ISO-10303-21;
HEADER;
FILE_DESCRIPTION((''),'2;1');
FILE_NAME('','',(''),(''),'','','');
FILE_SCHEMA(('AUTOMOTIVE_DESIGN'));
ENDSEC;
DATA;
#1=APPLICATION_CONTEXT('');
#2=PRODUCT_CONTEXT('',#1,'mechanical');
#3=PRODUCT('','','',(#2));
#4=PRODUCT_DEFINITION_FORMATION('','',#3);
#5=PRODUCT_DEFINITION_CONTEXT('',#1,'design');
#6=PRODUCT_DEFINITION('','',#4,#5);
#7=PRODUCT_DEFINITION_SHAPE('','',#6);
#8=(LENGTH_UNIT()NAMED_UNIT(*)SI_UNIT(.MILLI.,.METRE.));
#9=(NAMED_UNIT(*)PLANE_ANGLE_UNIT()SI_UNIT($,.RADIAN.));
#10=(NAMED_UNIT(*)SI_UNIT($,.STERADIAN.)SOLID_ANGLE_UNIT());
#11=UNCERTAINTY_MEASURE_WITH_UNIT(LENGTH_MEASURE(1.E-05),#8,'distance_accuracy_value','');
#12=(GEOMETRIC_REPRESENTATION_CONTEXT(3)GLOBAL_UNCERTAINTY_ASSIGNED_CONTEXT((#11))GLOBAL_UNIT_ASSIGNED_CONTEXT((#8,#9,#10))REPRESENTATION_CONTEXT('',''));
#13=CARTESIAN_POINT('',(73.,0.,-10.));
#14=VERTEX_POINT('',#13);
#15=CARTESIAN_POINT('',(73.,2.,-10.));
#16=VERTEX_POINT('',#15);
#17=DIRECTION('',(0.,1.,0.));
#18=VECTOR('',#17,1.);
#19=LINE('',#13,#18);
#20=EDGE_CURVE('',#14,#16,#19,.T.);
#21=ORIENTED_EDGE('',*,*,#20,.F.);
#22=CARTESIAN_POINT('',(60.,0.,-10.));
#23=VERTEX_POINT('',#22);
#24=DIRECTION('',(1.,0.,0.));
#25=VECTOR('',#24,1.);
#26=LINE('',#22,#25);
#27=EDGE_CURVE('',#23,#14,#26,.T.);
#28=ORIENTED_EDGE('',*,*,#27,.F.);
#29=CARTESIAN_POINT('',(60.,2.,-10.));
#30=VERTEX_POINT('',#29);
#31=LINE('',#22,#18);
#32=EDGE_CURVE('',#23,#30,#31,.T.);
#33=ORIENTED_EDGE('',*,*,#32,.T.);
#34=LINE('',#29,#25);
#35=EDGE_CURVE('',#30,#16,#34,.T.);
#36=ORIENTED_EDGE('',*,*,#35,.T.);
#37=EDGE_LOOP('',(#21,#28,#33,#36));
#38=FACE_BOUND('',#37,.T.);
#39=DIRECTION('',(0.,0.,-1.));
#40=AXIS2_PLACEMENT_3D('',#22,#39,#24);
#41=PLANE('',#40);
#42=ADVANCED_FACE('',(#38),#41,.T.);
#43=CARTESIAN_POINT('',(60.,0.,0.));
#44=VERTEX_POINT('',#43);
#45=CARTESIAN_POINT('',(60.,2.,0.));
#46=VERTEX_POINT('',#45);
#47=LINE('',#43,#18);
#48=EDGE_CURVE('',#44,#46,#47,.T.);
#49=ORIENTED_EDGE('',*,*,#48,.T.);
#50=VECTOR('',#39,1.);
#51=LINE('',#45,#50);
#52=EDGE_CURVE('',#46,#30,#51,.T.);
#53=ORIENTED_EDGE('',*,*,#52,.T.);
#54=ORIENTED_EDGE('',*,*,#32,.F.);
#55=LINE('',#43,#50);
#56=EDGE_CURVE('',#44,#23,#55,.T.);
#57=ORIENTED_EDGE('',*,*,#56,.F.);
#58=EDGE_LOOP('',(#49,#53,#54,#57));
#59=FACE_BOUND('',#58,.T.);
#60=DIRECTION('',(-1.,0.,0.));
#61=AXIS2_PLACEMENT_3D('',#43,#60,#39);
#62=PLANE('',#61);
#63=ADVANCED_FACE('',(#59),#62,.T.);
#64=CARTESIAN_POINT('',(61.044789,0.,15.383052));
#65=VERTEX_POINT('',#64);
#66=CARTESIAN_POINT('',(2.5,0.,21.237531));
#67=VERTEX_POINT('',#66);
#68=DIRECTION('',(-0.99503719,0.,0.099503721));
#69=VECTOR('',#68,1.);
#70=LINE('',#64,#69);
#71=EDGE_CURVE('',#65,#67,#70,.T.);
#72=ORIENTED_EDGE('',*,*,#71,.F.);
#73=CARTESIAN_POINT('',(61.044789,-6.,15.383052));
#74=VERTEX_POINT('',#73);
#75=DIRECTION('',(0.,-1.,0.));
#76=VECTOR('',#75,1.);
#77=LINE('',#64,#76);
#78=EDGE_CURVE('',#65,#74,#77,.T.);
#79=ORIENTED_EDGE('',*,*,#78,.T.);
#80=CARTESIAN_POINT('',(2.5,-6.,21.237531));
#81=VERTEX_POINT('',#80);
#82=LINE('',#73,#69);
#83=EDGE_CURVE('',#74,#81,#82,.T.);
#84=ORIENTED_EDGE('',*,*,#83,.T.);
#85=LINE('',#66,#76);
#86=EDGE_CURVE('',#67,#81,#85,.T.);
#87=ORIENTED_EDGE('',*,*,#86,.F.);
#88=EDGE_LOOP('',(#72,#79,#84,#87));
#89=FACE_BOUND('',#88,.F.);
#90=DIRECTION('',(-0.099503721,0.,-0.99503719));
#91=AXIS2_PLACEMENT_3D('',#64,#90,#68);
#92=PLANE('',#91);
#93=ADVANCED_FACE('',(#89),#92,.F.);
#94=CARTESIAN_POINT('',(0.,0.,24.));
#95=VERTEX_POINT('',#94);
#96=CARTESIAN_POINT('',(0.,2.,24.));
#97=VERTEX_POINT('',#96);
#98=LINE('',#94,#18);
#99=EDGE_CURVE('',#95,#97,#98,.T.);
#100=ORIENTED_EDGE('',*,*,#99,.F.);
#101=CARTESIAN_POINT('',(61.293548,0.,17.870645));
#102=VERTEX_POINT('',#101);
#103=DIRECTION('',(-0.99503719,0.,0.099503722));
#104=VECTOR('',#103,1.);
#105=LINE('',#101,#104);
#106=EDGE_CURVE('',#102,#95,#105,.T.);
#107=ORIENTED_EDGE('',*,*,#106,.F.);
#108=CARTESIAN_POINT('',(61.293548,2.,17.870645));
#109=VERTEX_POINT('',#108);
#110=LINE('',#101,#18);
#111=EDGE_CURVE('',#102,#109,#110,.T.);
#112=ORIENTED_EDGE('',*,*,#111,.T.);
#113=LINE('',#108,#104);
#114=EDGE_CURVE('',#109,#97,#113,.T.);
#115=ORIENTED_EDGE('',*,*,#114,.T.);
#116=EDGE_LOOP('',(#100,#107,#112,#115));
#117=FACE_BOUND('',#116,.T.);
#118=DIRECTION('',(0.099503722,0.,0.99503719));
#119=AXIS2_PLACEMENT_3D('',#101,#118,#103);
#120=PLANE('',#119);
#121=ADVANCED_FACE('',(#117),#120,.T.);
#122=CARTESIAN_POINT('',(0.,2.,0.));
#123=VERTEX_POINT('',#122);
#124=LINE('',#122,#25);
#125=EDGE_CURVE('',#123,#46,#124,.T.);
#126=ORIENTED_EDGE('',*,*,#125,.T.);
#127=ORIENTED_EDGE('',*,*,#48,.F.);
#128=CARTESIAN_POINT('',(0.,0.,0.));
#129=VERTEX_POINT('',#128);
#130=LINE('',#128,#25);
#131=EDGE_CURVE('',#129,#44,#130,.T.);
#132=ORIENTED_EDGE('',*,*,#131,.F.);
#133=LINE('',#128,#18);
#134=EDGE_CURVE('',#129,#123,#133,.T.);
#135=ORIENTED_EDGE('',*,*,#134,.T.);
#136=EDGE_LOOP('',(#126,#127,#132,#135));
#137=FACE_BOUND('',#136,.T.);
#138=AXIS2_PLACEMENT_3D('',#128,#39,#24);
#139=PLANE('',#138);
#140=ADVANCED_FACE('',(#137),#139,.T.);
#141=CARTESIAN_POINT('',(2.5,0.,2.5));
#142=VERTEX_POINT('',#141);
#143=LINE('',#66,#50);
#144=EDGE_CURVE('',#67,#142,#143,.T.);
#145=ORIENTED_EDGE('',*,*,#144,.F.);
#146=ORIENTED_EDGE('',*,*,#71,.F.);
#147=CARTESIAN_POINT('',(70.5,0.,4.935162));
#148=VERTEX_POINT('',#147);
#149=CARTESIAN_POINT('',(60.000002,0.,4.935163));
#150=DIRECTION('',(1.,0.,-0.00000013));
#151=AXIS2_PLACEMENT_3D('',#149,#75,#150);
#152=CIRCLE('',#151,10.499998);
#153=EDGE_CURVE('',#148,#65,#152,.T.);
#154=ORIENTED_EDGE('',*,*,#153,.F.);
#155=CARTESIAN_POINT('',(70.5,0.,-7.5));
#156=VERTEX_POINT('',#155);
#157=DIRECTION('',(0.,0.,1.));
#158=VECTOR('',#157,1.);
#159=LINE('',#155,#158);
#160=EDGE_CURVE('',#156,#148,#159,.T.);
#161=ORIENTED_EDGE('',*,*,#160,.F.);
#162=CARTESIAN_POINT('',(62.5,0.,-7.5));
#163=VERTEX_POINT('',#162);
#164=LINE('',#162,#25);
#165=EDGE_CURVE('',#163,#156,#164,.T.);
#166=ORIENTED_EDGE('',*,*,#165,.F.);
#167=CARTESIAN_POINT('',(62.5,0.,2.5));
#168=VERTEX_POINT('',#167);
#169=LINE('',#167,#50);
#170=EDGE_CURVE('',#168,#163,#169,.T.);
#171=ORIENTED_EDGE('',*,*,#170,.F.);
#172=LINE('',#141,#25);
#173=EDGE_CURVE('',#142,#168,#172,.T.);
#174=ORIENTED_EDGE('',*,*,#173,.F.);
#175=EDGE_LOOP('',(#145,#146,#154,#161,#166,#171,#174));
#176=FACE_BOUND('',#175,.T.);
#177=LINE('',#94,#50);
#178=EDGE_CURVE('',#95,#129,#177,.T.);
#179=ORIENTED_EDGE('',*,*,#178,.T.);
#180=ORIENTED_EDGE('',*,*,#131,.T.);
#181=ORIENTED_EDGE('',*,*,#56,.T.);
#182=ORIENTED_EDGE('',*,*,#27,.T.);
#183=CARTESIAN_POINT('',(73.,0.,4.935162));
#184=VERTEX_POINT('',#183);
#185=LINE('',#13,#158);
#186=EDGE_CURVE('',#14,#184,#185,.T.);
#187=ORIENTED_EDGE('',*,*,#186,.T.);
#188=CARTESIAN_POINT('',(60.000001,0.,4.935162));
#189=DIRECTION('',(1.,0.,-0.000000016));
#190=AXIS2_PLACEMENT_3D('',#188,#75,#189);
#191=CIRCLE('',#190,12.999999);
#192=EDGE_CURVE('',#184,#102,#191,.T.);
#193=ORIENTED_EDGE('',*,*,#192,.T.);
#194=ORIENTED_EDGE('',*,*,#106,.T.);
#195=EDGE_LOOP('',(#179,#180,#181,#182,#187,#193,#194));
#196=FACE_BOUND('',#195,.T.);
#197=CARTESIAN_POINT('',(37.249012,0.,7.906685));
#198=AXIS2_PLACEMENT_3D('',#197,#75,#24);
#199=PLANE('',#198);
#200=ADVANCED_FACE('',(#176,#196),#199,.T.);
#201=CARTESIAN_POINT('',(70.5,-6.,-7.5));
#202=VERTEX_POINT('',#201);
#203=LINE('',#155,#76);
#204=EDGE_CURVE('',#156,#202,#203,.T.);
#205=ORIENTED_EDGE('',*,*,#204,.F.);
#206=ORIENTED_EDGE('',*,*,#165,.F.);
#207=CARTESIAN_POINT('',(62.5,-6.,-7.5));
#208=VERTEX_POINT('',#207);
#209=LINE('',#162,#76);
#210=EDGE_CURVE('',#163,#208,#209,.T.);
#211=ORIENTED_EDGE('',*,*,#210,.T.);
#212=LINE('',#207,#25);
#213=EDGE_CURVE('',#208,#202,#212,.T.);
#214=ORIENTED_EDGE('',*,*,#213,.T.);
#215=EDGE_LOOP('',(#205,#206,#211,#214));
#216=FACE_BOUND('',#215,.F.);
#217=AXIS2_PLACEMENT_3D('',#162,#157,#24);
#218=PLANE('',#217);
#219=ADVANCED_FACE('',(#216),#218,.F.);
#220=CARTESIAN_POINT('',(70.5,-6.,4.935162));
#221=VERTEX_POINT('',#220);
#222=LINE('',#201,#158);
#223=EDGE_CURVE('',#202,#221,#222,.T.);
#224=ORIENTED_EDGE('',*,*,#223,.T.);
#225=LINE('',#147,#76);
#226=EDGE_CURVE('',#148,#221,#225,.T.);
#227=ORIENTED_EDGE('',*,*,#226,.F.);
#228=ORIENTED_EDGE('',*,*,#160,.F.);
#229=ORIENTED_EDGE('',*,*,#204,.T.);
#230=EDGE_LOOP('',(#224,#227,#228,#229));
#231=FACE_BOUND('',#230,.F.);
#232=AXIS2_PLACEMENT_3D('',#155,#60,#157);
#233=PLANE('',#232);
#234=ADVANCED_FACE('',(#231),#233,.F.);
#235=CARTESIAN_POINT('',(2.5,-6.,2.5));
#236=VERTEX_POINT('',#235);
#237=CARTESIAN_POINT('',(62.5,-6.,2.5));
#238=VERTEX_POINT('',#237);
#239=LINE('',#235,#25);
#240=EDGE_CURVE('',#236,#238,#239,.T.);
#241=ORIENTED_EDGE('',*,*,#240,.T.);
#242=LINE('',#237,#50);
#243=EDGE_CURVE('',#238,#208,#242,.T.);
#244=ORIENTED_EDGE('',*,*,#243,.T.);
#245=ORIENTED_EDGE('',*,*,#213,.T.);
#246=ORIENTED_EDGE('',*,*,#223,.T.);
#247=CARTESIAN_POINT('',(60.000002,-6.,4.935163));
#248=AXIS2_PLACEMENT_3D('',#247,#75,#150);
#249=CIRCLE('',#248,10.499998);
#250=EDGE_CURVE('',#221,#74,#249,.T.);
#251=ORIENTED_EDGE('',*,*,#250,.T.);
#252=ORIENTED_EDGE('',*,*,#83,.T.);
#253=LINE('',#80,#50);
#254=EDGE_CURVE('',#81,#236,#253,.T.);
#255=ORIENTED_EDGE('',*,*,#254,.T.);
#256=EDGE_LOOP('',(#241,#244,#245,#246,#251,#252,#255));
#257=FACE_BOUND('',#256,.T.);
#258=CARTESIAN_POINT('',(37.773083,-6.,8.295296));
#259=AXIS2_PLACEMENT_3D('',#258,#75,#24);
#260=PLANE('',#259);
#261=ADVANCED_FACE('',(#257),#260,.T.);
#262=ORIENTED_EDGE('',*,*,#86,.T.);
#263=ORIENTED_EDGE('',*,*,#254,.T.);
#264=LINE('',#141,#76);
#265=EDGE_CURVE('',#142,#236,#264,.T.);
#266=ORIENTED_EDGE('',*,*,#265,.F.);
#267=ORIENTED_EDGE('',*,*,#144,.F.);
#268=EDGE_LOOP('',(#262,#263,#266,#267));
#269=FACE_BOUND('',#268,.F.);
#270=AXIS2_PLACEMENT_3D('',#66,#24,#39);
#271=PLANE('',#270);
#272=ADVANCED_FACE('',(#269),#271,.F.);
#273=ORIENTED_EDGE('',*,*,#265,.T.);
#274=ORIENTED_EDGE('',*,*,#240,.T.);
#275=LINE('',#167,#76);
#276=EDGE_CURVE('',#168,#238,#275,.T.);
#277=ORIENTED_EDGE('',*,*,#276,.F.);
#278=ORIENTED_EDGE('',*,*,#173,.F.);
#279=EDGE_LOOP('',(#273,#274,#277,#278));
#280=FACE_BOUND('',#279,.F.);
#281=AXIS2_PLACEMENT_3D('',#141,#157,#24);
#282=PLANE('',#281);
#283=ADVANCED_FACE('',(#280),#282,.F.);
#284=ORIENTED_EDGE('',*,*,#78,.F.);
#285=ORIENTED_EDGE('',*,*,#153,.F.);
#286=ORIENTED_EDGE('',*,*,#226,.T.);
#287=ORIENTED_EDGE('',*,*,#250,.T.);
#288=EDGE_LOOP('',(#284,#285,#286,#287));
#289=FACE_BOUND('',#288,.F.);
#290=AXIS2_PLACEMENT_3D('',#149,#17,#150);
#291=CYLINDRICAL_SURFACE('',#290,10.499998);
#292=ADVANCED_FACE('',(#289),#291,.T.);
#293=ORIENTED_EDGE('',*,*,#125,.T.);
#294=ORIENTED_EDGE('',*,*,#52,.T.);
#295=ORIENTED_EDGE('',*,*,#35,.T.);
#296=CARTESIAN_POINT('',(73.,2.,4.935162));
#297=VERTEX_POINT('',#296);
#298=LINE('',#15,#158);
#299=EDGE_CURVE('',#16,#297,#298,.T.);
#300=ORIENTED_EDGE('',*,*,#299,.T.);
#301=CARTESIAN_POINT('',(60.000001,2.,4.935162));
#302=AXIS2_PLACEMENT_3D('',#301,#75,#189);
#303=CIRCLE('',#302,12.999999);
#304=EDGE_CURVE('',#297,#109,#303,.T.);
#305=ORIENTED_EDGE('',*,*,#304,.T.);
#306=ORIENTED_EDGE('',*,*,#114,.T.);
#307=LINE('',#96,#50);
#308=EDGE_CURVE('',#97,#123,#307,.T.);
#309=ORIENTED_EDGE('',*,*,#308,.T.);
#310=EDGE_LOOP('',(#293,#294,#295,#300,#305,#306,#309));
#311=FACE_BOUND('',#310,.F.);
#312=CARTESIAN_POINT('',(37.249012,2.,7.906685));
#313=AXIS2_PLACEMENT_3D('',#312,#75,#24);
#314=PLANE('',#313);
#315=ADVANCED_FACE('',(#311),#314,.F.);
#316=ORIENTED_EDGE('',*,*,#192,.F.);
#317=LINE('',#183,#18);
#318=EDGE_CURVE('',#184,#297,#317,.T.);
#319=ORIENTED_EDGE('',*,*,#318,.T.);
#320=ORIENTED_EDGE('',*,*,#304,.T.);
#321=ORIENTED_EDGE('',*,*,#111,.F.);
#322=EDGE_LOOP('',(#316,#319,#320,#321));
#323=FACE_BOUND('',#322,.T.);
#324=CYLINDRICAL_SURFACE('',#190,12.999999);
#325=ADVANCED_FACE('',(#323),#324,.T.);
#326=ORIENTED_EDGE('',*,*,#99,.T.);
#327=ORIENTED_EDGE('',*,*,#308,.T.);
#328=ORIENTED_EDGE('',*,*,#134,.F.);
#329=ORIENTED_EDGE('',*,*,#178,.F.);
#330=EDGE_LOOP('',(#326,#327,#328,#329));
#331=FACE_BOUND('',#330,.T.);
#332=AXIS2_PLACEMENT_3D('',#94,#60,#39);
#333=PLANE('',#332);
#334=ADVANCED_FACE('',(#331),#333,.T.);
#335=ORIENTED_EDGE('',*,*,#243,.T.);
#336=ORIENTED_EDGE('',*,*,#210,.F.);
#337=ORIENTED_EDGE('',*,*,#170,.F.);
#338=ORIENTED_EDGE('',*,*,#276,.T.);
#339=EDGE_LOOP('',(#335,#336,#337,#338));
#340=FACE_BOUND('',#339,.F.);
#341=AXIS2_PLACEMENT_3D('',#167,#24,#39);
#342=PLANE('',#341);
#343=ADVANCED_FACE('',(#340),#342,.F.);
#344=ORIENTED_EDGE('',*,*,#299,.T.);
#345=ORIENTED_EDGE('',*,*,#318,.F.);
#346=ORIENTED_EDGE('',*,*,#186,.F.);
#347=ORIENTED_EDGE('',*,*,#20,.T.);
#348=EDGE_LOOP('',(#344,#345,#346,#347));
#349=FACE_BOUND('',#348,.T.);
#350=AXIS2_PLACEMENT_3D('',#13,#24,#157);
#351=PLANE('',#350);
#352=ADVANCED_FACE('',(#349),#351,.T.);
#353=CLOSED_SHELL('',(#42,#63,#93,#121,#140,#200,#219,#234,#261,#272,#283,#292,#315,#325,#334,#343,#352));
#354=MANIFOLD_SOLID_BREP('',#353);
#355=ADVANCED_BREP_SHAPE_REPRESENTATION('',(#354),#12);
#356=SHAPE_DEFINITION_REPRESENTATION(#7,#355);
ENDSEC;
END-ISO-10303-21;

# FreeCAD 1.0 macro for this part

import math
import FreeCAD as App
import Part
import Sketcher
from FreeCAD import Vector

doc = App.newDocument("Part")
body = doc.addObject("PartDesign::Body", "Body")

# Sketch on XZ plane
sketch1 = doc.addObject("Sketcher::SketchObject", "Sketch")
body.addObject(sketch1)
sketch1.AttachmentSupport = (doc.XZ_Plane, [""])
sketch1.MapMode = "FlatFace"
sketch1.addGeometry([
    Part.LineSegment(Vector(0, 24, 0), Vector(0, 0, 0)),  # 0
    Part.LineSegment(Vector(0, 0, 0), Vector(60, 0, 0)),  # 1
    Part.LineSegment(Vector(60, 0, 0), Vector(60, -10, 0)),  # 2
    Part.LineSegment(Vector(60, -10, 0), Vector(73, -10, 0)),  # 3
    Part.LineSegment(Vector(73, -10, 0), Vector(73, 5, 0)),  # 4
    Part.ArcOfCircle(Part.Circle(Vector(60, 5, 0), Vector(0, 0, 1), 13), math.radians(0), math.radians(84)),  # 5
    Part.LineSegment(Vector(61, 18, 0), Vector(0, 24, 0)),  # 6
], False)
sketch1.addConstraint([
    Sketcher.Constraint("Coincident", 0, 2, 1, 1),
    Sketcher.Constraint("Coincident", 1, 2, 2, 1),
    Sketcher.Constraint("Coincident", 2, 2, 3, 1),
    Sketcher.Constraint("Coincident", 3, 2, 4, 1),
    Sketcher.Constraint("Tangent", 4, 2, 5, 1),
    Sketcher.Constraint("Tangent", 5, 2, 6, 1),
    Sketcher.Constraint("Coincident", 6, 2, 0, 1),
    Sketcher.Constraint("Vertical", 0),
    Sketcher.Constraint("Horizontal", 1),
    Sketcher.Constraint("Vertical", 2),
    Sketcher.Constraint("Horizontal", 3),
    Sketcher.Constraint("Vertical", 4),
    Sketcher.Constraint("Coincident", 0, 2, -1, 1),
    Sketcher.Constraint("Vertical", 5, 3, 1, 2),
    Sketcher.Constraint("Radius", 5, 12.999999),
    Sketcher.Constraint("DistanceX", 1, 1, 1, 2, 60.0),
    Sketcher.Constraint("DistanceY", 0, 2, 0, 1, 24.0),
    Sketcher.Constraint("DistanceY", 2, 2, 2, 1, 10.0),
    Sketcher.Constraint("DistanceY", 4, 1, 4, 2, 14.935162),
])
pad1 = doc.addObject("PartDesign::Pad", "Pad")
body.addObject(pad1)
pad1.Profile = sketch1
pad1.Length = 2
pad1.Reversed = True

# Sketch on XZ plane
sketch2 = doc.addObject("Sketcher::SketchObject", "Sketch001")
body.addObject(sketch2)
sketch2.AttachmentSupport = (doc.XZ_Plane, [""])
sketch2.MapMode = "FlatFace"
sketch2.addGeometry([
    Part.LineSegment(Vector(2, 21, 0), Vector(2, 2, 0)),  # 0
    Part.LineSegment(Vector(2, 2, 0), Vector(62, 2, 0)),  # 1
    Part.LineSegment(Vector(62, 2, 0), Vector(62, -8, 0)),  # 2
    Part.LineSegment(Vector(62, -8, 0), Vector(70, -8, 0)),  # 3
    Part.LineSegment(Vector(70, -8, 0), Vector(70, 5, 0)),  # 4
    Part.ArcOfCircle(Part.Circle(Vector(60, 5, 0), Vector(0, 0, 1), 10), math.radians(0), math.radians(84)),  # 5
    Part.LineSegment(Vector(61, 15, 0), Vector(2, 21, 0)),  # 6
], False)
sketch2.addConstraint([
    Sketcher.Constraint("Coincident", 0, 2, 1, 1),
    Sketcher.Constraint("Coincident", 1, 2, 2, 1),
    Sketcher.Constraint("Coincident", 2, 2, 3, 1),
    Sketcher.Constraint("Coincident", 3, 2, 4, 1),
    Sketcher.Constraint("Tangent", 4, 2, 5, 1),
    Sketcher.Constraint("Tangent", 5, 2, 6, 1),
    Sketcher.Constraint("Coincident", 6, 2, 0, 1),
    Sketcher.Constraint("Vertical", 0),
    Sketcher.Constraint("Horizontal", 1),
    Sketcher.Constraint("Vertical", 2),
    Sketcher.Constraint("Horizontal", 3),
    Sketcher.Constraint("Vertical", 4),
    Sketcher.Constraint("DistanceX", 1, 1, 1, 2, 60.0),
    Sketcher.Constraint("DistanceX", 3, 1, 3, 2, 8.0),
    Sketcher.Constraint("DistanceY", 2, 2, 2, 1, 10.0),
    Sketcher.Constraint("DistanceX", -1, 1, 0, 2, 2.5),
    Sketcher.Constraint("DistanceY", -1, 1, 0, 2, 2.5),
    Sketcher.Constraint("Radius", 5, 10.499998),
    Sketcher.Constraint("DistanceY", 0, 2, 0, 1, 18.737531),
    Sketcher.Constraint("DistanceY", 4, 1, 4, 2, 12.435162),
])
pad2 = doc.addObject("PartDesign::Pad", "Pad001")
body.addObject(pad2)
pad2.Profile = sketch2
pad2.Length = 6

doc.recompute()
